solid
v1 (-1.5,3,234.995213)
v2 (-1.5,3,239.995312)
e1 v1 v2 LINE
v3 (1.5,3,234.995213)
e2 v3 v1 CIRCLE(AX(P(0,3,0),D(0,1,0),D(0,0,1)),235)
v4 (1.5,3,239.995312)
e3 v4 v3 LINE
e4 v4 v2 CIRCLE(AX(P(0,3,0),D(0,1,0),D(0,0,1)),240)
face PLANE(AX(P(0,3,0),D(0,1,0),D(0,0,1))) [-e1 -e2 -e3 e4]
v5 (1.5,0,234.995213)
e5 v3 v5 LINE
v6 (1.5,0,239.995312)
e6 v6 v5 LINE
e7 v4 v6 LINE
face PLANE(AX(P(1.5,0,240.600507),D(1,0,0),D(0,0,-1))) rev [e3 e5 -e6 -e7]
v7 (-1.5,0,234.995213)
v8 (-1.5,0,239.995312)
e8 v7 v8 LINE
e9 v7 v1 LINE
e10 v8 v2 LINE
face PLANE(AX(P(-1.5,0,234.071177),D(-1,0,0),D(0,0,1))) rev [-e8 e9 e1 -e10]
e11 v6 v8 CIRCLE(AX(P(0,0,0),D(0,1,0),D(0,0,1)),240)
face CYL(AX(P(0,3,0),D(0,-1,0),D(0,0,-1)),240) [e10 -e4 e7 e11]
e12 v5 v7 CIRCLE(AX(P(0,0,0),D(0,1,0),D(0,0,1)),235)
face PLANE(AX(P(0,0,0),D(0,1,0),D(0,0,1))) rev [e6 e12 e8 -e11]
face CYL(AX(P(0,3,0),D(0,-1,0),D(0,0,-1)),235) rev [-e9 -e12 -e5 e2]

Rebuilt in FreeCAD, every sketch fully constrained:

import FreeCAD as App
import Part
import Sketcher
from FreeCAD import Vector


def add_polygon(sketch, points):
    """Adds a closed chain of lines whose ends are joined by coincident constraints."""
    first, n = sketch.GeometryCount, len(points)
    for a, b in zip(points, points[1:] + points[:1]):
        sketch.addGeometry(Part.LineSegment(App.Vector(*a, 0), App.Vector(*b, 0)), False)
    for i in range(n):
        sketch.addConstraint(Sketcher.Constraint("Coincident", first + i, 2, first + (i + 1) % n, 1))

doc = App.newDocument("Part")
body = doc.addObject("PartDesign::Body", "Body")

sketch1 = doc.addObject("Sketcher::SketchObject", "Sketch")
body.addObject(sketch1)
sketch1.AttachmentSupport = (doc.XZ_Plane, [""])
sketch1.MapMode = "FlatFace"
sketch1.addGeometry(Part.Circle(Vector(0, 0, 0), Vector(0, 0, 1), 240), False)
sketch1.addGeometry(Part.Circle(Vector(0, 0, 0), Vector(0, 0, 1), 235), False)
sketch1.addConstraint(Sketcher.Constraint("Coincident", 0, 3, -1, 1))
sketch1.addConstraint(Sketcher.Constraint("Coincident", 1, 3, -1, 1))
sketch1.addConstraint(Sketcher.Constraint("Diameter", 0, 480.0))
sketch1.addConstraint(Sketcher.Constraint("Diameter", 1, 470.0))
pad1 = doc.addObject("PartDesign::Pad", "Pad")
body.addObject(pad1)
pad1.Profile = sketch1
pad1.Length = 3
pad1.Reversed = True

sketch2 = doc.addObject("Sketcher::SketchObject", "Sketch001")
body.addObject(sketch2)
sketch2.AttachmentSupport = (doc.XZ_Plane, [""])
sketch2.MapMode = "FlatFace"
sketch2.AttachmentOffset = App.Placement(Vector(0, 0, -3), App.Rotation())
add_polygon(sketch2, [(-1.5, 234.1), (-1.5, 240.6), (1.5, 240.6), (1.5, 234.1)])
sketch2.addConstraint(Sketcher.Constraint("Vertical", 0))
sketch2.addConstraint(Sketcher.Constraint("Horizontal", 1))
sketch2.addConstraint(Sketcher.Constraint("Vertical", 2))
sketch2.addConstraint(Sketcher.Constraint("Horizontal", 3))
sketch2.addConstraint(Sketcher.Constraint("DistanceX", 1, 1, 1, 2, 3.0))
sketch2.addConstraint(Sketcher.Constraint("DistanceX", 0, 2, -1, 1, 1.5))
sketch2.addConstraint(Sketcher.Constraint("DistanceY", 0, 1, 0, 2, 6.529331))
sketch2.addConstraint(Sketcher.Constraint("DistanceY", -1, 1, 0, 2, 240.600507))
pocket1 = doc.addObject("PartDesign::Pocket", "Pocket")
body.addObject(pocket1)
pocket1.Profile = sketch2
pocket1.Length = 3
pocket1.Reversed = True

doc.recompute()
